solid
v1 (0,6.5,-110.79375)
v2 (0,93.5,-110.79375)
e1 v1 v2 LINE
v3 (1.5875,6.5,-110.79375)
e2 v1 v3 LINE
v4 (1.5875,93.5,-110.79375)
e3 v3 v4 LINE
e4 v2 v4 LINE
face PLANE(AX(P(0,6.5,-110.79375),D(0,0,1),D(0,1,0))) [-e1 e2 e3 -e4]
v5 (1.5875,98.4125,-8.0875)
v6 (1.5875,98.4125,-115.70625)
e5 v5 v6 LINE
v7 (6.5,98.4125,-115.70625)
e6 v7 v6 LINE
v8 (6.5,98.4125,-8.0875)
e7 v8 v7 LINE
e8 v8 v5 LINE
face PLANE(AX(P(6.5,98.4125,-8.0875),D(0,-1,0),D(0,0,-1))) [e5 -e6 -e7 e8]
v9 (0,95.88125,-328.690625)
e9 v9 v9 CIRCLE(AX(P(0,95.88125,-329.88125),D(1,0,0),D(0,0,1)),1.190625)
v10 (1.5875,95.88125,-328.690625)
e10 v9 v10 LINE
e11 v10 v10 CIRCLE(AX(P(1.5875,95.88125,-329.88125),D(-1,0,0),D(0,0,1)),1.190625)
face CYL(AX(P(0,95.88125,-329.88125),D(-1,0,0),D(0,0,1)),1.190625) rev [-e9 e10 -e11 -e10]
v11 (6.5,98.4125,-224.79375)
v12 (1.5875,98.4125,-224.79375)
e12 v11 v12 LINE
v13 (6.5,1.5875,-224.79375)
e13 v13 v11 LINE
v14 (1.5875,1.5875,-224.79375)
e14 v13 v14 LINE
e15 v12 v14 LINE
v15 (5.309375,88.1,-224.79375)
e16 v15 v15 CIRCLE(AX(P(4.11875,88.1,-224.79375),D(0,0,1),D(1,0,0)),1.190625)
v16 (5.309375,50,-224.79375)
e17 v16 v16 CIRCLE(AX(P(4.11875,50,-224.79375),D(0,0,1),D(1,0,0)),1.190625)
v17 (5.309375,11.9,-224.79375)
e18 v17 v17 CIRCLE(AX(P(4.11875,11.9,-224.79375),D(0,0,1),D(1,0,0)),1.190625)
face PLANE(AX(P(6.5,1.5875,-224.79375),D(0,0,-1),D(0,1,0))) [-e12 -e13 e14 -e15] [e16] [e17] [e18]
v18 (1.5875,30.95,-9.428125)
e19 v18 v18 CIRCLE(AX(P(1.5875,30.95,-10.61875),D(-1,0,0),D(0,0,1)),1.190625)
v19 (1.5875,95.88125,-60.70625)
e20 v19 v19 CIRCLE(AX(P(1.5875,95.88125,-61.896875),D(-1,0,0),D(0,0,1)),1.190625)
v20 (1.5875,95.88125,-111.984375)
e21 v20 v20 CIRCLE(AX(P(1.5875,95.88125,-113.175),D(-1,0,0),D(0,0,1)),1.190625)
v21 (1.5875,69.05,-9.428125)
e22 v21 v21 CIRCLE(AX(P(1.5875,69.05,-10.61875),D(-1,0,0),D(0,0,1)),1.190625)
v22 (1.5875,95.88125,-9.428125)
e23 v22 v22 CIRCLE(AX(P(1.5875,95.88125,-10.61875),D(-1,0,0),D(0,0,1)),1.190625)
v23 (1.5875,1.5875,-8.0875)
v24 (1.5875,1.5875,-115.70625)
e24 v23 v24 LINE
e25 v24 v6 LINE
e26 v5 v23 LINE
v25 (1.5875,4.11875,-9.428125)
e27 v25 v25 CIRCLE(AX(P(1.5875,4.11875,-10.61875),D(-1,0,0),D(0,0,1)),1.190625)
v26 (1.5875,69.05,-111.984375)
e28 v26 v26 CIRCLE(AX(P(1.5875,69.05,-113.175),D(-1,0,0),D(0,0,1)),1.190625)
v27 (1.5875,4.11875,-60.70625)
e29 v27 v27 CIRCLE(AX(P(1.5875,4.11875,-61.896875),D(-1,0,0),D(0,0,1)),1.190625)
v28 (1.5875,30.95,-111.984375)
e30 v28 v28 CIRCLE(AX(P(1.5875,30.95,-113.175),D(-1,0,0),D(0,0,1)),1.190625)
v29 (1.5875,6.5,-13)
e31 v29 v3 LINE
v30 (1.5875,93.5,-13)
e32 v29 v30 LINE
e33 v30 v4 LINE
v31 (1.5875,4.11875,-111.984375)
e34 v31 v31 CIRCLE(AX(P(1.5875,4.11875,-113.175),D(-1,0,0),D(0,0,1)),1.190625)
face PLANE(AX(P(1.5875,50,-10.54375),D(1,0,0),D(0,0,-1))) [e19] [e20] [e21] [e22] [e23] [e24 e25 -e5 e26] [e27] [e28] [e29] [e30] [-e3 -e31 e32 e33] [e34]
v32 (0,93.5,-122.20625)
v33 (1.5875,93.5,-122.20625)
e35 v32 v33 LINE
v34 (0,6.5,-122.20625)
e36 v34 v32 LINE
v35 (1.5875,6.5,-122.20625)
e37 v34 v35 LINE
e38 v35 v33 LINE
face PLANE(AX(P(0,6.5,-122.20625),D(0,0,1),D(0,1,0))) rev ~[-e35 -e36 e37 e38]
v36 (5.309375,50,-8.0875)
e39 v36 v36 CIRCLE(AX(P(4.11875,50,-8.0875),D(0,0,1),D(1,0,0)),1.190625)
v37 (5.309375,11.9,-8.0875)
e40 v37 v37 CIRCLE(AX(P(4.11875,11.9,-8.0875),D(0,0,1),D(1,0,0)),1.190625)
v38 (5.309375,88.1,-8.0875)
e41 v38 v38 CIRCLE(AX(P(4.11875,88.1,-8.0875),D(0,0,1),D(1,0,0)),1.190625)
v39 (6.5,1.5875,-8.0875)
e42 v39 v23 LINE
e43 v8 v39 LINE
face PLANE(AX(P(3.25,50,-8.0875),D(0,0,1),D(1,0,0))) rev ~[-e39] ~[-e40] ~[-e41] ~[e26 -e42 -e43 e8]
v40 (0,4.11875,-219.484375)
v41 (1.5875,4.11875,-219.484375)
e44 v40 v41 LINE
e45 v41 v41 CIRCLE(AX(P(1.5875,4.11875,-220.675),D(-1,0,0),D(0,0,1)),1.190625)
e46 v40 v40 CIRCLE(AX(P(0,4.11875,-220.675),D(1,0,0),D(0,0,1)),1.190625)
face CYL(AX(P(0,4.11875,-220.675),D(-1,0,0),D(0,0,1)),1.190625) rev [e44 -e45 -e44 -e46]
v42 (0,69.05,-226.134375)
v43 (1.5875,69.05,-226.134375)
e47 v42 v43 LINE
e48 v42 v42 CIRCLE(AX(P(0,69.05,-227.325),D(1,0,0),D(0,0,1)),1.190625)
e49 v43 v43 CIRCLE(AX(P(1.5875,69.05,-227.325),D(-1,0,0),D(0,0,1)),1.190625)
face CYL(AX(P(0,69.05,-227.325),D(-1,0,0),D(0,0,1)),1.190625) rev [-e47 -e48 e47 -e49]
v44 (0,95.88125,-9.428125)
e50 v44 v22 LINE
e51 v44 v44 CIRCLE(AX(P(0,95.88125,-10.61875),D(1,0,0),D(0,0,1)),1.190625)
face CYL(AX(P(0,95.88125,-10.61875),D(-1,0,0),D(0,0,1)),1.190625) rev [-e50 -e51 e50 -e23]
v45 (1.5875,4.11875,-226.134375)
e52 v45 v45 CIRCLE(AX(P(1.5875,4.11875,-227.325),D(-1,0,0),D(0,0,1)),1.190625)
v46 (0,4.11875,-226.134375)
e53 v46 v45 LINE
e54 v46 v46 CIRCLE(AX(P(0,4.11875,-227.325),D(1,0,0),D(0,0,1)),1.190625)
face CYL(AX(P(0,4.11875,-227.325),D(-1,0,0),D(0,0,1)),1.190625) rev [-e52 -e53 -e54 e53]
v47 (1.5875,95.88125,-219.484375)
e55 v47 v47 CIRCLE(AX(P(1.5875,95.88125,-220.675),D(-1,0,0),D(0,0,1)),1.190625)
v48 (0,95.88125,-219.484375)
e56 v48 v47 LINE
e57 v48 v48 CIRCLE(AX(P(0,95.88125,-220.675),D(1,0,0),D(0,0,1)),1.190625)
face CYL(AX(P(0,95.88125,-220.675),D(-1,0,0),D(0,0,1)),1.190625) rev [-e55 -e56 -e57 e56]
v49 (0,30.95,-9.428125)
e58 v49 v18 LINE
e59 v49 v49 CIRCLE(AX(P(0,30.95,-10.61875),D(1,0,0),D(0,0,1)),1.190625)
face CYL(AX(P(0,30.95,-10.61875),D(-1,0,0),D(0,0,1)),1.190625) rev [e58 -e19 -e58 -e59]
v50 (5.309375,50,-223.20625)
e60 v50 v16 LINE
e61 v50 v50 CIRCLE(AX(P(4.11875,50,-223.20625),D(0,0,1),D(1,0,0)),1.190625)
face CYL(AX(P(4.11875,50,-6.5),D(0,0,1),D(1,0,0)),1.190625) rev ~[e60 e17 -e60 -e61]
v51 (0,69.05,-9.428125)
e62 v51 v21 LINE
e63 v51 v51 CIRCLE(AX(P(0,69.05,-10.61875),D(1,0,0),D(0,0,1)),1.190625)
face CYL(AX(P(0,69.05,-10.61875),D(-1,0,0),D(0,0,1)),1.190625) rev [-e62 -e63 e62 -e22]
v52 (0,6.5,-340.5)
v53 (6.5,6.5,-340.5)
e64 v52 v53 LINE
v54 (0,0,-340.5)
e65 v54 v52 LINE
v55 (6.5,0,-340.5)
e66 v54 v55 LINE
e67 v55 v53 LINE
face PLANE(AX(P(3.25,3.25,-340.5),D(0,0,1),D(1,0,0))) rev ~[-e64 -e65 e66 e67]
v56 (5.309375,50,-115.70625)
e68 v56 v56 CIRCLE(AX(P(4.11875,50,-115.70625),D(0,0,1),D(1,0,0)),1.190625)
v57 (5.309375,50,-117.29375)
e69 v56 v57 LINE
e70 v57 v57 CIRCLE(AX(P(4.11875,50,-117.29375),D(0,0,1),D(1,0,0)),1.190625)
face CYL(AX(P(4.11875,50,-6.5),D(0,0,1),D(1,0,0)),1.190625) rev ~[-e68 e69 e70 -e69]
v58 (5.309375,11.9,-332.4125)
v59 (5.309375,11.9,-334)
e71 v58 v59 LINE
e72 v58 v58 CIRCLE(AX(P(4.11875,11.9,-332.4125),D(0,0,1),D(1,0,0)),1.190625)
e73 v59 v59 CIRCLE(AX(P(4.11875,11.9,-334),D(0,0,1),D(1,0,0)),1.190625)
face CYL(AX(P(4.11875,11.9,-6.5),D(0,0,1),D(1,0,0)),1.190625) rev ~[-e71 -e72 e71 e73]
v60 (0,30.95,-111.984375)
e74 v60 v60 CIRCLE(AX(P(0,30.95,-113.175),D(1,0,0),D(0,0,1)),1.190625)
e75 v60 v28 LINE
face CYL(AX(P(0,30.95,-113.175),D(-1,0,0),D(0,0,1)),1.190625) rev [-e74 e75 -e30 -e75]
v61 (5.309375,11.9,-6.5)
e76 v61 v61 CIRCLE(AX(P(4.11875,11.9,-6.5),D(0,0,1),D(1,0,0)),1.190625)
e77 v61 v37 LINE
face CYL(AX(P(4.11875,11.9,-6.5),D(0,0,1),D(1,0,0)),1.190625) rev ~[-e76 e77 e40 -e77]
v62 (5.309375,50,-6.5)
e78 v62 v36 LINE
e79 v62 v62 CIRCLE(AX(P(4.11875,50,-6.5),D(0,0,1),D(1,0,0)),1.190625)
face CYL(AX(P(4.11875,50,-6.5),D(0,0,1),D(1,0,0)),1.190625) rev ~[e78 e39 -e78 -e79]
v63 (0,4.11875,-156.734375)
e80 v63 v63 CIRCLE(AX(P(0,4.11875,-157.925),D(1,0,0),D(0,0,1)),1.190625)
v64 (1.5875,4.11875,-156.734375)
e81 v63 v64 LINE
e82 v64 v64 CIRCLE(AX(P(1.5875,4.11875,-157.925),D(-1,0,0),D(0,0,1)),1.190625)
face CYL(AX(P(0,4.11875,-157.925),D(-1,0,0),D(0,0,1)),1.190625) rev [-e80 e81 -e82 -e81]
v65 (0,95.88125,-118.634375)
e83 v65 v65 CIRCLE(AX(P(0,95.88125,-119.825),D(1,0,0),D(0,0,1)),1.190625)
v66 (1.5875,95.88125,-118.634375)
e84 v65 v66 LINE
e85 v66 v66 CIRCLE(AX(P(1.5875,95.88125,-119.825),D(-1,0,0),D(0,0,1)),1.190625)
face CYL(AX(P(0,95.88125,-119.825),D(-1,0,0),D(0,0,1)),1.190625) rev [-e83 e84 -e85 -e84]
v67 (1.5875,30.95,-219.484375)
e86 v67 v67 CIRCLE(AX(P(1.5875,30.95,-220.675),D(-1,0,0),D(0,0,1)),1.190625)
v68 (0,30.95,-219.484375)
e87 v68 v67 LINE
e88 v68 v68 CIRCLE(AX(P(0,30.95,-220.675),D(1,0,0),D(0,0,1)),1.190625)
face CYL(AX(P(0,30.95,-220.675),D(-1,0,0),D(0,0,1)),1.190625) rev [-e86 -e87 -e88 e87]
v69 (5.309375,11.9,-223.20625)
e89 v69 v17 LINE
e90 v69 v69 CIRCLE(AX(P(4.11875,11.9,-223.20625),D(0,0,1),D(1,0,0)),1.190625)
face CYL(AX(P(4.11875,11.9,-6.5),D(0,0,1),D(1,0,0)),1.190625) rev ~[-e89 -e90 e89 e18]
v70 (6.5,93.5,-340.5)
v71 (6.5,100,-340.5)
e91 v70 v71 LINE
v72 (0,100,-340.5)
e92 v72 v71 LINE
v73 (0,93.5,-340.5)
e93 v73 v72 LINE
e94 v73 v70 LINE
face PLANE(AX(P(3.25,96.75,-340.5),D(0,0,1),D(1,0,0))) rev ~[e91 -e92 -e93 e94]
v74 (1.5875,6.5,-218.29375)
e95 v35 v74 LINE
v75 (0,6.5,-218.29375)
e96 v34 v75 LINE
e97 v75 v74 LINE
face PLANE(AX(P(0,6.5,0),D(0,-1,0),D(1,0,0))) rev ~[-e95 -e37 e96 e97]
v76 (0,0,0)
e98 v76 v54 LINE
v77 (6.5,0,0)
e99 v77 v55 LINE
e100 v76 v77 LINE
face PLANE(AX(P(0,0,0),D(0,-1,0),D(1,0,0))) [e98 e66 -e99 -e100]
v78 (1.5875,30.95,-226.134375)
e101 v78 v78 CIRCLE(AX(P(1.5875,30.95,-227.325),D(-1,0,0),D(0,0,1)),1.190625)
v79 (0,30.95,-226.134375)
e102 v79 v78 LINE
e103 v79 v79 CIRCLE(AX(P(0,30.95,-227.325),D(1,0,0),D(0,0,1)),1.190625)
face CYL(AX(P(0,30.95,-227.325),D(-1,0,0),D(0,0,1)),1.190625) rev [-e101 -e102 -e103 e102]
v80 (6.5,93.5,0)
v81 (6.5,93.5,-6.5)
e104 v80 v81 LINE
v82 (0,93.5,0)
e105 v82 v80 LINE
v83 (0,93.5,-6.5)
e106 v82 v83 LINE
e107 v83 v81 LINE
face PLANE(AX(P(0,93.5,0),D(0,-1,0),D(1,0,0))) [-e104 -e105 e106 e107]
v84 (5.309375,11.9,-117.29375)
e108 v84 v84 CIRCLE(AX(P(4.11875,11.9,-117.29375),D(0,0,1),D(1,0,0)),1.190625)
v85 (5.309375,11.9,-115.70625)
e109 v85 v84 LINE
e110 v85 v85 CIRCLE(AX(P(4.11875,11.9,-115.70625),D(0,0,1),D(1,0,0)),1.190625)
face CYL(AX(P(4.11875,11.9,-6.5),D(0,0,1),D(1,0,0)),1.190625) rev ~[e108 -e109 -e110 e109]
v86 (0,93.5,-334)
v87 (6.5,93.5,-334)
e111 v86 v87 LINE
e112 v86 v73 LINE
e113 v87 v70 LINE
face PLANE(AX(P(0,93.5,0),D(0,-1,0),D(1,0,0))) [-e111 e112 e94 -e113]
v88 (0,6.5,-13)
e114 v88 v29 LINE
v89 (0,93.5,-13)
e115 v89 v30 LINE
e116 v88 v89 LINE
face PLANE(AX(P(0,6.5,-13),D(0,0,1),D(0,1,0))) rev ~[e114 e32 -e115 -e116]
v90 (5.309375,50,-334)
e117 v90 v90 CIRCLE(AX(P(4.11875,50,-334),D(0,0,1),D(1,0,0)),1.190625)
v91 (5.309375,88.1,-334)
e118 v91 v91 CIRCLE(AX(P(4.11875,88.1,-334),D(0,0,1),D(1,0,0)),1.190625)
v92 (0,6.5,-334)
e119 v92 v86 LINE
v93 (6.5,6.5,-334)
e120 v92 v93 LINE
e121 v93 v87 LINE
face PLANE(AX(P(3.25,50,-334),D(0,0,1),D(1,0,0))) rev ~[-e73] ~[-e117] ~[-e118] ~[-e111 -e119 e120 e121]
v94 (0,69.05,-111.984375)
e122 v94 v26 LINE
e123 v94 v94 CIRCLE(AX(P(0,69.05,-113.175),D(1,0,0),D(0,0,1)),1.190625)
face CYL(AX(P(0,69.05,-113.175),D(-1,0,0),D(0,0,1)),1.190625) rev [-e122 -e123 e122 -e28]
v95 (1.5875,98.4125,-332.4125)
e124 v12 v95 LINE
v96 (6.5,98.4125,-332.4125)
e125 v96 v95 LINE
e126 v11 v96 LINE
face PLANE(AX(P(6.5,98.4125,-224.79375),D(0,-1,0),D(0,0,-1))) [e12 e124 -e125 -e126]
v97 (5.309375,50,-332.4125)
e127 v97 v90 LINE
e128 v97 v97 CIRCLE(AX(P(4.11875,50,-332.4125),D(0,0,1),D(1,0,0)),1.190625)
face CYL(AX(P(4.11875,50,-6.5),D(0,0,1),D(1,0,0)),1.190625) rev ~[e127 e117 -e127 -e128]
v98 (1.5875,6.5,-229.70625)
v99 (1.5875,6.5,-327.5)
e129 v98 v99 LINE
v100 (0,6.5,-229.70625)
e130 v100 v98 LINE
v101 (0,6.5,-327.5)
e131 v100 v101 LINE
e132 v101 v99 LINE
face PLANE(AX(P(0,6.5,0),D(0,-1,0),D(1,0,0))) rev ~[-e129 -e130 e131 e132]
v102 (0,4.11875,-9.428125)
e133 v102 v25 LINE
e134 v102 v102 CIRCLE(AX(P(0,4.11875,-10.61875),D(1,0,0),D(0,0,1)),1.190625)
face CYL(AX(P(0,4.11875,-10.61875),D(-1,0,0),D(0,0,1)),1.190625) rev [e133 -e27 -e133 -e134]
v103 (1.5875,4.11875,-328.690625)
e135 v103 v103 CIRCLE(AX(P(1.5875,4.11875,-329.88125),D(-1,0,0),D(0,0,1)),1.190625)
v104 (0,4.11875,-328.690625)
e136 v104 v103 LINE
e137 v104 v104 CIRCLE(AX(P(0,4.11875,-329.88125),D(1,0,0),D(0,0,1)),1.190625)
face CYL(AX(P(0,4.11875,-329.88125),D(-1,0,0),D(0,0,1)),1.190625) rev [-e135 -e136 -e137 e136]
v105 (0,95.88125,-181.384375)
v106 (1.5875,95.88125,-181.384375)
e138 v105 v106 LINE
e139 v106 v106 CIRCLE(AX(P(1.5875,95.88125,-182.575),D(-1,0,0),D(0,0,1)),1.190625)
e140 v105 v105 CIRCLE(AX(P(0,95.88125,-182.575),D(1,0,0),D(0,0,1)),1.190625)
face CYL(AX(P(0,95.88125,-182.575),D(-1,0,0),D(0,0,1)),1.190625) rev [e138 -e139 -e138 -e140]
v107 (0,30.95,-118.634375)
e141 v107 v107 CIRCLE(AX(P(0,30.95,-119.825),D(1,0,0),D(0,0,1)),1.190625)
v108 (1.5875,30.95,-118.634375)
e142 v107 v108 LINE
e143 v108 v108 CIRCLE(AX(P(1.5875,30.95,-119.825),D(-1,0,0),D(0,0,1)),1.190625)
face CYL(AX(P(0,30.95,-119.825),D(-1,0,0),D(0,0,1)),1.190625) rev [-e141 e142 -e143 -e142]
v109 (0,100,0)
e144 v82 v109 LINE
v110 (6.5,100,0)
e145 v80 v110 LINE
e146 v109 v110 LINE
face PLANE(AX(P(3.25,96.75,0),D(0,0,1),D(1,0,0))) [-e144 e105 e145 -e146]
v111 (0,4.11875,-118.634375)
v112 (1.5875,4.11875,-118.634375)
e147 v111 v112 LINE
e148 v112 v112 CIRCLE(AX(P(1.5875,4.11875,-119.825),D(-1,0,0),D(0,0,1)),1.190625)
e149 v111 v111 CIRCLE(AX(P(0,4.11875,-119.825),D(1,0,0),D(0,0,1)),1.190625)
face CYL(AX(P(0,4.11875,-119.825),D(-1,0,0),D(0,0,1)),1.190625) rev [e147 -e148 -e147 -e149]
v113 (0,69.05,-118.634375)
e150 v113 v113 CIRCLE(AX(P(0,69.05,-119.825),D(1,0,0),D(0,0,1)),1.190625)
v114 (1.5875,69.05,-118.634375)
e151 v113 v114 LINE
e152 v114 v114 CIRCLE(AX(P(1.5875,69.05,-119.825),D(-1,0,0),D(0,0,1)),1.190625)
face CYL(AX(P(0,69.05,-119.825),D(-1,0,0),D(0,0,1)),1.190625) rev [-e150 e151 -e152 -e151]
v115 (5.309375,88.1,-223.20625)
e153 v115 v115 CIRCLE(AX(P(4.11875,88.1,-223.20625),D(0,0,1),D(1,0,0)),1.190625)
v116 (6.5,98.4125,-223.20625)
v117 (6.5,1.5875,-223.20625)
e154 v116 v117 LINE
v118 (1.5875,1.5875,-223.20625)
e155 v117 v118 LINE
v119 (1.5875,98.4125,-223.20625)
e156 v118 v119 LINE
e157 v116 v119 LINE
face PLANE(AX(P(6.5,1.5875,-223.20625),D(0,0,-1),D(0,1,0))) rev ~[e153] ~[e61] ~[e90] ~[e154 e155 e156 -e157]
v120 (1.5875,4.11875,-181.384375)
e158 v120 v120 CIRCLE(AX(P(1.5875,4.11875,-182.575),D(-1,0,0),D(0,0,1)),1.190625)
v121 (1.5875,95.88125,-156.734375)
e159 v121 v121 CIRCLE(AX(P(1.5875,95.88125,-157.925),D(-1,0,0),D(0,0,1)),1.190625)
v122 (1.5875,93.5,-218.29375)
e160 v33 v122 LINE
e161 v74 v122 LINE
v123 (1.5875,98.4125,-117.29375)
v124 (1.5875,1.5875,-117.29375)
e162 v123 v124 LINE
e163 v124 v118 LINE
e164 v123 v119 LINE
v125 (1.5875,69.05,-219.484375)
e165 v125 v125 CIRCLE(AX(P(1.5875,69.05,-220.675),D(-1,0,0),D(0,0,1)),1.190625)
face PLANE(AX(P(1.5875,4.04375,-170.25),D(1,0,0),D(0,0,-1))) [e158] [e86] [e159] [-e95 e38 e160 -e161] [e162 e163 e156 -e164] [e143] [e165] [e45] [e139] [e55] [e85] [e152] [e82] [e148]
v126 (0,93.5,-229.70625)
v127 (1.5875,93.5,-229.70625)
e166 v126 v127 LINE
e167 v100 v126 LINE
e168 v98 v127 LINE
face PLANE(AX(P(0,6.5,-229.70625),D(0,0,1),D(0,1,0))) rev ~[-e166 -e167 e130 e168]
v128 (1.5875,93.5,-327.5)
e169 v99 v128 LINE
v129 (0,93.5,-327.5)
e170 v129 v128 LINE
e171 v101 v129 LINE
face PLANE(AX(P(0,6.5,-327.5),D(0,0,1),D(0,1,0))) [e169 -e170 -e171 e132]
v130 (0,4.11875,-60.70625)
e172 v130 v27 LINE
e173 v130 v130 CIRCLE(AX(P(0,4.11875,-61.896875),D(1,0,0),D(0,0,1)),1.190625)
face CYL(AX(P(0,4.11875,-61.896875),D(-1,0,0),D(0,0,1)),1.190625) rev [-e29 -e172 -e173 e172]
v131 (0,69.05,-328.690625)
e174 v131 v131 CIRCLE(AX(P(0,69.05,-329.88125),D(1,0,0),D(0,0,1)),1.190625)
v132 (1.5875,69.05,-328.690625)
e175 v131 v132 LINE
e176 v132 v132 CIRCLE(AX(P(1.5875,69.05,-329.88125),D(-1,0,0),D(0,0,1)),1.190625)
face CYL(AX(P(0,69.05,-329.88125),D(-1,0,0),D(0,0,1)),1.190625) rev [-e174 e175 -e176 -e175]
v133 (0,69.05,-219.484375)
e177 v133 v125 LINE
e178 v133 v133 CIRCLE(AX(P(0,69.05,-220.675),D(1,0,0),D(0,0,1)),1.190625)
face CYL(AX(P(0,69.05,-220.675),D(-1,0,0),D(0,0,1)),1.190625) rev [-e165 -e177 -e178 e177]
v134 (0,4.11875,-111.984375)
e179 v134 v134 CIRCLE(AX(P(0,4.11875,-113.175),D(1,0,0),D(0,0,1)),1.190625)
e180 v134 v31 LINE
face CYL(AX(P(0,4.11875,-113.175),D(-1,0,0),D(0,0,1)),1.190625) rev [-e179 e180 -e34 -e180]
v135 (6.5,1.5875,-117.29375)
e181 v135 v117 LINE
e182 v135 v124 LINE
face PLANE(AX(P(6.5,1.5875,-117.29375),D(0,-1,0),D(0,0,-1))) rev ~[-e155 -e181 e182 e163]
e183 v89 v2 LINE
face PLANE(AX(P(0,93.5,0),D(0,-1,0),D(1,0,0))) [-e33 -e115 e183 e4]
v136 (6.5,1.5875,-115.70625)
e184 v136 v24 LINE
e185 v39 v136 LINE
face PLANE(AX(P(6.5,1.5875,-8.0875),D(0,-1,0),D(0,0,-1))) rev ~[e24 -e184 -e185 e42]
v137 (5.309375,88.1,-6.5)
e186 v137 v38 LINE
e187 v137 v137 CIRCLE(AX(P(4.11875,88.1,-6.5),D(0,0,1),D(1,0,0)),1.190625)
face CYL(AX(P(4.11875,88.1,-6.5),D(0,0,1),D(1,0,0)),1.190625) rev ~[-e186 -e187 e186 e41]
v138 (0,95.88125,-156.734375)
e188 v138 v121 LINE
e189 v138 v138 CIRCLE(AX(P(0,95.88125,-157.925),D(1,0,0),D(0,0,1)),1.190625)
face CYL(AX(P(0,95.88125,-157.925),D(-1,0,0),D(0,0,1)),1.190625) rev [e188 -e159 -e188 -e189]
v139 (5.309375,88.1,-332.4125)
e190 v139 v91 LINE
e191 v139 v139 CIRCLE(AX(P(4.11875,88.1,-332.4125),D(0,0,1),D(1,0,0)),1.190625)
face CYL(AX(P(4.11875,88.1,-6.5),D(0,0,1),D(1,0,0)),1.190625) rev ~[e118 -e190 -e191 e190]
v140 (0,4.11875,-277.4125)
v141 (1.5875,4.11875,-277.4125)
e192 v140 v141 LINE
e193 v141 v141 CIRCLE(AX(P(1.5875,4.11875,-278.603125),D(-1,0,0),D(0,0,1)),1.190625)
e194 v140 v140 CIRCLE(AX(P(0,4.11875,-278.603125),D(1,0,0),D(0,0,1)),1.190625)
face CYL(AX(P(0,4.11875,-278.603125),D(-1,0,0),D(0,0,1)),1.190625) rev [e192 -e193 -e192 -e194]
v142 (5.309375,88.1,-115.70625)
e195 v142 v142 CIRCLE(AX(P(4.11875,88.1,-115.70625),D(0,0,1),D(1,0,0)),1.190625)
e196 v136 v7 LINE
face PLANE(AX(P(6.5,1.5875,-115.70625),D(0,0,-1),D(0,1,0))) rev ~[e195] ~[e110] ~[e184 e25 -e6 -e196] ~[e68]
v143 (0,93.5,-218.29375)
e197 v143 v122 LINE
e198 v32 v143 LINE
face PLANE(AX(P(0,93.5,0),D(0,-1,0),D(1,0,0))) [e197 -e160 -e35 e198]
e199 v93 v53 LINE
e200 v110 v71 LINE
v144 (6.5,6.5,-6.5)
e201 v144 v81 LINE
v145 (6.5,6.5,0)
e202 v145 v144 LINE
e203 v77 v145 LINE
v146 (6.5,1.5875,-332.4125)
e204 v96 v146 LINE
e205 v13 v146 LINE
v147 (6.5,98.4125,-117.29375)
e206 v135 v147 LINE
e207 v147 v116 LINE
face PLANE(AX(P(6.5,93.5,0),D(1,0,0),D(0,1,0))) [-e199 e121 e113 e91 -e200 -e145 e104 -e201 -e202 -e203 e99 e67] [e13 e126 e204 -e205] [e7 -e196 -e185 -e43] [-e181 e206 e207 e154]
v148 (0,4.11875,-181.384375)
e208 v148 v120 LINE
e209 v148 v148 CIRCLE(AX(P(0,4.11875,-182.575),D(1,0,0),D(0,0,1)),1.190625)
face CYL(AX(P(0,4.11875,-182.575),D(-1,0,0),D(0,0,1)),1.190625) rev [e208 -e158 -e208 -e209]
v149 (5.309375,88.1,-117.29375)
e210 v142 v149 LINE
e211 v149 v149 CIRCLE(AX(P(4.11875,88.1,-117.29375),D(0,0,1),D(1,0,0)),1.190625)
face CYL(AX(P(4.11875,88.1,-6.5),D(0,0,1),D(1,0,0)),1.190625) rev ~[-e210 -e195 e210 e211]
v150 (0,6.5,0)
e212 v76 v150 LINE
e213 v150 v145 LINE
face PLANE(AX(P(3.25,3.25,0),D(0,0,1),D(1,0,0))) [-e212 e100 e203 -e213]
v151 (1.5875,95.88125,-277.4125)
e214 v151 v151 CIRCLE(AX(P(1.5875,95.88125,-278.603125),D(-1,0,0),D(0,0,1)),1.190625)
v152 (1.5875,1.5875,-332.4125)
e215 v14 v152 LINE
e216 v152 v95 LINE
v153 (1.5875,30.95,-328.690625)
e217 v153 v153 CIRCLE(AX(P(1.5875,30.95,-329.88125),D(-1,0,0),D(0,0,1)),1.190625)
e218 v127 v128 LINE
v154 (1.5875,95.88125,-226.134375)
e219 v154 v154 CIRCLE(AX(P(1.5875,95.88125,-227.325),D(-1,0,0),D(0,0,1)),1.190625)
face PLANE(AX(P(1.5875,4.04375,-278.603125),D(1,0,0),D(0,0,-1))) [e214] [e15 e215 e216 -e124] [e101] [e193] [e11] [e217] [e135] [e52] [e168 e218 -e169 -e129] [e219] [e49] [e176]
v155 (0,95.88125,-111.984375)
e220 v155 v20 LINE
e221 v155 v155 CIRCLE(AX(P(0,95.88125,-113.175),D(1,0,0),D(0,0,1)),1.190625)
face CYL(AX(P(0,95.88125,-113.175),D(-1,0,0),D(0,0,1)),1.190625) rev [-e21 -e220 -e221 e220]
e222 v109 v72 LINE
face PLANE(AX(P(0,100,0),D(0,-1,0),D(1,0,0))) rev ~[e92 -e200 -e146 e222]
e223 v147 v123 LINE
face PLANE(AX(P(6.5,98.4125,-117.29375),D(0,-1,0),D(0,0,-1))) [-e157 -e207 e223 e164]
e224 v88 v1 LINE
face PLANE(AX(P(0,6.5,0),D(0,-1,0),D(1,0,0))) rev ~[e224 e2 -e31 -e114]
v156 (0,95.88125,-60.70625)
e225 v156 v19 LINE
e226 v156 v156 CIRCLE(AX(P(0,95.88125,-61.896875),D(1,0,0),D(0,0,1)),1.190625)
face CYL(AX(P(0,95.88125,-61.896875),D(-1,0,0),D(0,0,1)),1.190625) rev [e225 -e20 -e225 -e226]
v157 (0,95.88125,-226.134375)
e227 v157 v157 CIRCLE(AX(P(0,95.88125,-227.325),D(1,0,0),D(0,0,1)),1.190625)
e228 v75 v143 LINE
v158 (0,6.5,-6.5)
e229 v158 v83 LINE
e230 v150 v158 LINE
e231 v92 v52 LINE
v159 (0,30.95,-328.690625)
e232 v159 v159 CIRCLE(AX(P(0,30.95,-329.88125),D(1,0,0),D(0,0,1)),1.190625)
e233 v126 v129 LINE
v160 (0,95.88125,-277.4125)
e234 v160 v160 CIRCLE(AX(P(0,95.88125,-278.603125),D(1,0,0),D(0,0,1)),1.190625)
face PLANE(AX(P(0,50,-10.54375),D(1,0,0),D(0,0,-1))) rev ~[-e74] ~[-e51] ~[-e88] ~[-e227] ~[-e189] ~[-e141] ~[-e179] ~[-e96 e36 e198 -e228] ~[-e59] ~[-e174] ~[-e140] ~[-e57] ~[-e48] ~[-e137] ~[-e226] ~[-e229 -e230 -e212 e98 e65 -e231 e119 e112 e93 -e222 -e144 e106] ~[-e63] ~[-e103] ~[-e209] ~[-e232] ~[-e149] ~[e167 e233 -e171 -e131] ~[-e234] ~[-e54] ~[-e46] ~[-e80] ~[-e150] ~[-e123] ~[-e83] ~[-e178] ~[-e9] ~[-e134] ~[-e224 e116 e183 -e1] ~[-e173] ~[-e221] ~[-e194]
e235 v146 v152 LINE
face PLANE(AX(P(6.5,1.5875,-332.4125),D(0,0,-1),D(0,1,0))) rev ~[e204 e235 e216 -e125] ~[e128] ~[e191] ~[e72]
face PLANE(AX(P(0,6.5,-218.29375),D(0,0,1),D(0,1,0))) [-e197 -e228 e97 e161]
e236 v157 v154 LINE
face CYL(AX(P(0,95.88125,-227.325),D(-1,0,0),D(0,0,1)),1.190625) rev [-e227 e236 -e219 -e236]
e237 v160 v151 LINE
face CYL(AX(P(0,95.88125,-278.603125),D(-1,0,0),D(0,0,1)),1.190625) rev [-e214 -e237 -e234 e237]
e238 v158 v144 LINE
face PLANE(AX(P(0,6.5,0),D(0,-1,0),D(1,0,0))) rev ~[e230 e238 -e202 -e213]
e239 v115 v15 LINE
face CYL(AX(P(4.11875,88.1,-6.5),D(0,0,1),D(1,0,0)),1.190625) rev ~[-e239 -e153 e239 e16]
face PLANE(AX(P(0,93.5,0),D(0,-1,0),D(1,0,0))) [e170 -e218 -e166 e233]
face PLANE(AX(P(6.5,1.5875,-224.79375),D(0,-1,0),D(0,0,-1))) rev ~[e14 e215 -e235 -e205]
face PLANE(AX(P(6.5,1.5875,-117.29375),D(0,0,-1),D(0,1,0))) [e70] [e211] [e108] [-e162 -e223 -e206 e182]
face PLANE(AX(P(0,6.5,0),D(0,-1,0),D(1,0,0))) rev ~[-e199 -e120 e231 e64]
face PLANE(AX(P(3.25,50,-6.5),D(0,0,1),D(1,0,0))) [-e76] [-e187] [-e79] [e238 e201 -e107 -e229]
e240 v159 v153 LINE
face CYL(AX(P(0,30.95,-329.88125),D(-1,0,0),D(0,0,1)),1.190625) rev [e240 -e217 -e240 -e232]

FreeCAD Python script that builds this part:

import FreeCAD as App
import Part
import Sketcher


def add_polygon(sketch, points):
    """Adds a closed chain of lines whose ends are joined by coincident constraints."""
    first, n = sketch.GeometryCount, len(points)
    for a, b in zip(points, points[1:] + points[:1]):
        sketch.addGeometry(Part.LineSegment(App.Vector(*a, 0), App.Vector(*b, 0)), False)
    for i in range(n):
        sketch.addConstraint(Sketcher.Constraint("Coincident", first + i, 2, first + (i + 1) % n, 1))

doc = App.newDocument("Part")
body = doc.addObject("PartDesign::Body", "Body")

# Sketch on XY plane
sketch1 = body.newObject("Sketcher::SketchObject", "Sketch")
sketch1.AttachmentSupport = (doc.getObject("XY_Plane"), [""])
sketch1.MapMode = "FlatFace"
add_polygon(sketch1, [(0, 6), (0, 0), (6, 0), (6, 6)])  # lines 0-3
sketch1.addConstraint([
    Sketcher.Constraint("Vertical", 0),
    Sketcher.Constraint("Horizontal", 1),
    Sketcher.Constraint("Vertical", 2),
    Sketcher.Constraint("Horizontal", 3),
    Sketcher.Constraint("Coincident", 0, 2, -1, 1),
    Sketcher.Constraint("Equal", 3, 0),
    Sketcher.Constraint("DistanceX", 1, 1, 1, 2, 6.5),
])
pad1 = body.newObject("PartDesign::Pad", "Pad")
pad1.Profile = sketch1
pad1.Length = 340.5
pad1.Reversed = True
body2 = doc.addObject("PartDesign::Body", "Body001")

# Sketch on XY plane
sketch2 = body2.newObject("Sketcher::SketchObject", "Sketch001")
sketch2.AttachmentSupport = (doc.getObject("XY_Plane001"), [""])
sketch2.MapMode = "FlatFace"
add_polygon(sketch2, [(0, 100), (0, 94), (6, 94), (6, 100)])  # lines 0-3
sketch2.addConstraint([
    Sketcher.Constraint("Vertical", 0),
    Sketcher.Constraint("Horizontal", 1),
    Sketcher.Constraint("Vertical", 2),
    Sketcher.Constraint("Horizontal", 3),
    Sketcher.Constraint("PointOnObject", 0, 2, -2),
    Sketcher.Constraint("Equal", 3, 0),
    Sketcher.Constraint("DistanceX", 1, 1, 1, 2, 6.5),
    Sketcher.Constraint("DistanceY", -1, 1, 2, 2, 100.0),
])
pad2 = body2.newObject("PartDesign::Pad", "Pad001")
pad2.Profile = sketch2
pad2.Length = 340.5
pad2.Reversed = True
body.AllowCompound = True
doc.recompute()

boolean = body.newObject("PartDesign::Boolean", "Boolean")
boolean.Type = "Fuse"
boolean.addObjects([body2])

# Sketch on XY plane
sketch3 = body.newObject("Sketcher::SketchObject", "Sketch002")
sketch3.AttachmentSupport = (doc.getObject("XY_Plane"), [""])
sketch3.MapMode = "FlatFace"
sketch3.AttachmentOffset = App.Placement(App.Vector(0, 0, -6.5), App.Rotation())
add_polygon(sketch3, [(0, 94), (0, 6), (6, 6), (6, 94)])  # lines 0-3
sketch3.addConstraint([
    Sketcher.Constraint("Vertical", 0),
    Sketcher.Constraint("Horizontal", 1),
    Sketcher.Constraint("Vertical", 2),
    Sketcher.Constraint("Horizontal", 3),
    Sketcher.Constraint("PointOnObject", 0, 2, -2),
    Sketcher.Constraint("DistanceY", 0, 2, 0, 1, 87.0),
    Sketcher.Constraint("DistanceX", 1, 1, 1, 2, 6.5),
    Sketcher.Constraint("DistanceY", -1, 1, 0, 2, 6.5),
])
pad3 = body.newObject("PartDesign::Pad", "Pad002")
pad3.Profile = sketch3
pad3.Length = 1.5875
pad3.Reversed = True

# Sketch on XY plane
sketch4 = body.newObject("Sketcher::SketchObject", "Sketch003")
sketch4.AttachmentSupport = (doc.getObject("XY_Plane"), [""])
sketch4.MapMode = "FlatFace"
sketch4.AttachmentOffset = App.Placement(App.Vector(0, 0, -116.5), App.Rotation())
add_polygon(sketch4, [(0, 94), (0, 6), (6, 6), (6, 94)])  # lines 0-3
sketch4.addConstraint([
    Sketcher.Constraint("Vertical", 0),
    Sketcher.Constraint("Horizontal", 1),
    Sketcher.Constraint("Vertical", 2),
    Sketcher.Constraint("Horizontal", 3),
    Sketcher.Constraint("PointOnObject", 0, 2, -2),
    Sketcher.Constraint("DistanceY", 0, 2, 0, 1, 87.0),
    Sketcher.Constraint("DistanceX", 1, 1, 1, 2, 6.5),
    Sketcher.Constraint("DistanceY", -1, 1, 0, 2, 6.5),
])
pad4 = body.newObject("PartDesign::Pad", "Pad003")
pad4.Profile = sketch4
pad4.Length = 1.5875
pad4.Midplane = True

# Sketch on XY plane
sketch5 = body.newObject("Sketcher::SketchObject", "Sketch004")
sketch5.AttachmentSupport = (doc.getObject("XY_Plane"), [""])
sketch5.MapMode = "FlatFace"
sketch5.AttachmentOffset = App.Placement(App.Vector(0, 0, -224), App.Rotation())
add_polygon(sketch5, [(0, 94), (0, 6), (6, 6), (6, 94)])  # lines 0-3
sketch5.addConstraint([
    Sketcher.Constraint("Vertical", 0),
    Sketcher.Constraint("Horizontal", 1),
    Sketcher.Constraint("Vertical", 2),
    Sketcher.Constraint("Horizontal", 3),
    Sketcher.Constraint("PointOnObject", 0, 2, -2),
    Sketcher.Constraint("DistanceY", 0, 2, 0, 1, 87.0),
    Sketcher.Constraint("DistanceX", 1, 1, 1, 2, 6.5),
    Sketcher.Constraint("DistanceY", -1, 1, 0, 2, 6.5),
])
pad5 = body.newObject("PartDesign::Pad", "Pad004")
pad5.Profile = sketch5
pad5.Length = 1.5875
pad5.Midplane = True

# Sketch on XY plane
sketch6 = body.newObject("Sketcher::SketchObject", "Sketch005")
sketch6.AttachmentSupport = (doc.getObject("XY_Plane"), [""])
sketch6.MapMode = "FlatFace"
sketch6.AttachmentOffset = App.Placement(App.Vector(0, 0, -334), App.Rotation())
add_polygon(sketch6, [(0, 94), (0, 6), (6, 6), (6, 94)])  # lines 0-3
sketch6.addConstraint([
    Sketcher.Constraint("Vertical", 0),
    Sketcher.Constraint("Horizontal", 1),
    Sketcher.Constraint("Vertical", 2),
    Sketcher.Constraint("Horizontal", 3),
    Sketcher.Constraint("PointOnObject", 0, 2, -2),
    Sketcher.Constraint("DistanceY", 0, 2, 0, 1, 87.0),
    Sketcher.Constraint("DistanceX", 1, 1, 1, 2, 6.5),
    Sketcher.Constraint("DistanceY", -1, 1, 0, 2, 6.5),
])
pad6 = body.newObject("PartDesign::Pad", "Pad005")
pad6.Profile = sketch6
pad6.Length = 1.5875

# Sketch on YZ plane
sketch7 = body.newObject("Sketcher::SketchObject", "Sketch006")
sketch7.AttachmentSupport = (doc.getObject("YZ_Plane"), [""])
sketch7.MapMode = "FlatFace"
add_polygon(sketch7, [(93.5, -8.1), (6.5, -8.1), (6.5, -13), (93.5, -13)])  # lines 0-3
add_polygon(sketch7, [(93.5, -110.8), (6.5, -110.8), (6.5, -115.7), (93.5, -115.7)])  # lines 4-7
add_polygon(sketch7, [(93.5, -117.3), (6.5, -117.3), (6.5, -122.2), (93.5, -122.2)])  # lines 8-11
add_polygon(sketch7, [(93.5, -218.3), (6.5, -218.3), (6.5, -223.2), (93.5, -223.2)])  # lines 12-15
add_polygon(sketch7, [(93.5, -224.8), (6.5, -224.8), (6.5, -229.7), (93.5, -229.7)])  # lines 16-19
add_polygon(sketch7, [(93.5, -327.5), (6.5, -327.5), (6.5, -332.4), (93.5, -332.4)])  # lines 20-23
sketch7.addConstraint([
    Sketcher.Constraint("Horizontal", 0),
    Sketcher.Constraint("Vertical", 1),
    Sketcher.Constraint("Horizontal", 2),
    Sketcher.Constraint("Vertical", 3),
    Sketcher.Constraint("Horizontal", 4),
    Sketcher.Constraint("Vertical", 5),
    Sketcher.Constraint("Horizontal", 6),
    Sketcher.Constraint("Vertical", 7),
    Sketcher.Constraint("Horizontal", 8),
    Sketcher.Constraint("Vertical", 9),
    Sketcher.Constraint("Horizontal", 10),
    Sketcher.Constraint("Vertical", 11),
    Sketcher.Constraint("Horizontal", 12),
    Sketcher.Constraint("Vertical", 13),
    Sketcher.Constraint("Horizontal", 14),
    Sketcher.Constraint("Vertical", 15),
    Sketcher.Constraint("Horizontal", 16),
    Sketcher.Constraint("Vertical", 17),
    Sketcher.Constraint("Horizontal", 18),
    Sketcher.Constraint("Vertical", 19),
    Sketcher.Constraint("Horizontal", 20),
    Sketcher.Constraint("Vertical", 21),
    Sketcher.Constraint("Horizontal", 22),
    Sketcher.Constraint("Vertical", 23),
    Sketcher.Constraint("Vertical", 1, 2, 4, 2),
    Sketcher.Constraint("Vertical", 3, 2, 6, 2),
    Sketcher.Constraint("Vertical", 5, 2, 8, 2),
    Sketcher.Constraint("Vertical", 7, 2, 10, 2),
    Sketcher.Constraint("Vertical", 9, 2, 12, 2),
    Sketcher.Constraint("Vertical", 11, 2, 14, 2),
    Sketcher.Constraint("Vertical", 13, 2, 16, 2),
    Sketcher.Constraint("Vertical", 15, 2, 18, 2),
    Sketcher.Constraint("Vertical", 17, 2, 20, 2),
    Sketcher.Constraint("Vertical", 19, 2, 22, 2),
    Sketcher.Constraint("Equal", 3, 5),
    Sketcher.Constraint("Equal", 7, 9),
    Sketcher.Constraint("Equal", 11, 13),
    Sketcher.Constraint("Equal", 15, 17),
    Sketcher.Constraint("Equal", 19, 21),
    Sketcher.Constraint("DistanceX", 0, 2, 0, 1, 87.0),
    Sketcher.Constraint("DistanceY", 1, 2, -1, 1, 13.0),
    Sketcher.Constraint("DistanceY", 12, 2, 8, 2, 101.0),
    Sketcher.Constraint("DistanceX", -1, 1, 0, 2, 6.5),
    Sketcher.Constraint("DistanceY", 20, 2, -1, 1, 327.5),
    Sketcher.Constraint("DistanceY", 8, 2, 4, 2, 6.5),
    Sketcher.Constraint("DistanceY", 16, 2, 12, 2, 6.5),
    Sketcher.Constraint("DistanceY", 1, 2, 1, 1, 4.9125),
    Sketcher.Constraint("DistanceY", 4, 2, -1, 1, 110.79375),
])
pad7 = body.newObject("PartDesign::Pad", "Pad006")
pad7.Profile = sketch7
pad7.Length = 1.5875

# Sketch on YZ plane
sketch8 = body.newObject("Sketcher::SketchObject", "Sketch007")
sketch8.AttachmentSupport = (doc.getObject("YZ_Plane"), [""])
sketch8.MapMode = "FlatFace"
sketch8.AttachmentOffset = App.Placement(App.Vector(0, 0, 6.5), App.Rotation())
add_polygon(sketch8, [(6.5, -8.1), (1.6, -8.1), (1.6, -115.7), (6.5, -115.7)])  # lines 0-3
add_polygon(sketch8, [(98.4, -8.1), (93.5, -8.1), (93.5, -115.7), (98.4, -115.7)])  # lines 4-7
add_polygon(sketch8, [(98.4, -117.3), (93.5, -117.3), (93.5, -223.2), (98.4, -223.2)])  # lines 8-11
add_polygon(sketch8, [(6.5, -117.3), (1.6, -117.3), (1.6, -223.2), (6.5, -223.2)])  # lines 12-15
add_polygon(sketch8, [(6.5, -224.8), (1.6, -224.8), (1.6, -332.4), (6.5, -332.4)])  # lines 16-19
add_polygon(sketch8, [(98.4, -224.8), (93.5, -224.8), (93.5, -332.4), (98.4, -332.4)])  # lines 20-23
sketch8.addConstraint([
    Sketcher.Constraint("Horizontal", 0),
    Sketcher.Constraint("Vertical", 1),
    Sketcher.Constraint("Horizontal", 2),
    Sketcher.Constraint("Vertical", 3),
    Sketcher.Constraint("Horizontal", 4),
    Sketcher.Constraint("Vertical", 5),
    Sketcher.Constraint("Horizontal", 6),
    Sketcher.Constraint("Vertical", 7),
    Sketcher.Constraint("Horizontal", 8),
    Sketcher.Constraint("Vertical", 9),
    Sketcher.Constraint("Horizontal", 10),
    Sketcher.Constraint("Vertical", 11),
    Sketcher.Constraint("Horizontal", 12),
    Sketcher.Constraint("Vertical", 13),
    Sketcher.Constraint("Horizontal", 14),
    Sketcher.Constraint("Vertical", 15),
    Sketcher.Constraint("Horizontal", 16),
    Sketcher.Constraint("Vertical", 17),
    Sketcher.Constraint("Horizontal", 18),
    Sketcher.Constraint("Vertical", 19),
    Sketcher.Constraint("Horizontal", 20),
    Sketcher.Constraint("Vertical", 21),
    Sketcher.Constraint("Horizontal", 22),
    Sketcher.Constraint("Vertical", 23),
    Sketcher.Constraint("Horizontal", 3, 2, 4, 2),
    Sketcher.Constraint("Horizontal", 2, 2, 5, 2),
    Sketcher.Constraint("Horizontal", 11, 2, 12, 2),
    Sketcher.Constraint("Horizontal", 10, 2, 13, 2),
    Sketcher.Constraint("Horizontal", 19, 2, 20, 2),
    Sketcher.Constraint("Horizontal", 18, 2, 21, 2),
    Sketcher.Constraint("Vertical", 5, 2, 8, 2),
    Sketcher.Constraint("Vertical", 7, 2, 10, 2),
    Sketcher.Constraint("Vertical", 1, 2, 12, 2),
    Sketcher.Constraint("Vertical", 3, 2, 14, 2),
    Sketcher.Constraint("Vertical", 13, 2, 16, 2),
    Sketcher.Constraint("Vertical", 15, 2, 18, 2),
    Sketcher.Constraint("Vertical", 9, 2, 20, 2),
    Sketcher.Constraint("Vertical", 11, 2, 22, 2),
    Sketcher.Constraint("Equal", 2, 4),
    Sketcher.Constraint("Equal", 7, 17),
    Sketcher.Constraint("DistanceX", 3, 2, 4, 2, 87.0),
    Sketcher.Constraint("DistanceX", -1, 1, 2, 2, 6.5),
    Sketcher.Constraint("DistanceY", 9, 2, 5, 2, 107.5),
    Sketcher.Constraint("DistanceY", 16, 2, 12, 2, 107.5),
    Sketcher.Constraint("DistanceX", 0, 2, 0, 1, 4.9125),
    Sketcher.Constraint("DistanceY", 9, 2, 9, 1, 105.9125),
    Sketcher.Constraint("DistanceY", 1, 2, 1, 1, 107.61875),
    Sketcher.Constraint("DistanceY", 0, 2, -1, 1, 8.0875),
])
pocket1 = body.newObject("PartDesign::Pocket", "Pocket")
pocket1.Profile = sketch8
pocket1.Length = 4.9125

# Sketch on XY plane
sketch9 = body.newObject("Sketcher::SketchObject", "Sketch008")
sketch9.AttachmentSupport = (doc.getObject("XY_Plane"), [""])
sketch9.MapMode = "FlatFace"
sketch9.AttachmentOffset = App.Placement(App.Vector(0, 0, -6.5), App.Rotation())
sketch9.addGeometry([
    Part.Circle(App.Vector(4.1, 88.1, 0), App.Vector(0, 0, 1), 1.2),
    Part.Circle(App.Vector(4.1, 50, 0), App.Vector(0, 0, 1), 1.2),
    Part.Circle(App.Vector(4.1, 11.9, 0), App.Vector(0, 0, 1), 1.2),
], False)
sketch9.addConstraint([
    Sketcher.Constraint("Equal", 0, 1),
    Sketcher.Constraint("Equal", 1, 2),
    Sketcher.Constraint("Vertical", 0, 3, 1, 3),
    Sketcher.Constraint("Vertical", 1, 3, 2, 3),
    Sketcher.Constraint("DistanceY", -1, 1, 1, 3, 50.0),
    Sketcher.Constraint("DistanceY", -1, 1, 0, 3, 88.1),
    Sketcher.Constraint("DistanceY", -1, 1, 2, 3, 11.9),
    Sketcher.Constraint("Diameter", 0, 2.38125),
    Sketcher.Constraint("DistanceX", -1, 1, 0, 3, 4.11875),
])
pocket2 = body.newObject("PartDesign::Pocket", "Pocket001")
pocket2.Profile = sketch9
pocket2.Type = "ThroughAll"

# Sketch on YZ plane
sketch10 = body.newObject("Sketcher::SketchObject", "Sketch009")
sketch10.AttachmentSupport = (doc.getObject("YZ_Plane"), [""])
sketch10.MapMode = "FlatFace"
sketch10.addGeometry([
    Part.Circle(App.Vector(95.9, -10.6, 0), App.Vector(0, 0, 1), 1.2),  # 0
    Part.Circle(App.Vector(95.9, -113.2, 0), App.Vector(0, 0, 1), 1.2),  # 1
    Part.Circle(App.Vector(95.9, -61.9, 0), App.Vector(0, 0, 1), 1.2),  # 2
    Part.Circle(App.Vector(95.9, -119.8, 0), App.Vector(0, 0, 1), 1.2),  # 3
    Part.Circle(App.Vector(95.9, -157.9, 0), App.Vector(0, 0, 1), 1.2),  # 4
    Part.Circle(App.Vector(69, -10.6, 0), App.Vector(0, 0, 1), 1.2),  # 5
    Part.Circle(App.Vector(69, -113.2, 0), App.Vector(0, 0, 1), 1.2),  # 6
    Part.Circle(App.Vector(69, -119.8, 0), App.Vector(0, 0, 1), 1.2),  # 7
    Part.Circle(App.Vector(69, -220.7, 0), App.Vector(0, 0, 1), 1.2),  # 8
    Part.Circle(App.Vector(69, -227.3, 0), App.Vector(0, 0, 1), 1.2),  # 9
    Part.Circle(App.Vector(69, -329.9, 0), App.Vector(0, 0, 1), 1.2),  # 10
    Part.Circle(App.Vector(95.9, -182.6, 0), App.Vector(0, 0, 1), 1.2),  # 11
    Part.Circle(App.Vector(95.9, -220.7, 0), App.Vector(0, 0, 1), 1.2),  # 12
    Part.Circle(App.Vector(95.9, -278.6, 0), App.Vector(0, 0, 1), 1.2),  # 13
    Part.Circle(App.Vector(95.9, -227.3, 0), App.Vector(0, 0, 1), 1.2),  # 14
    Part.Circle(App.Vector(95.9, -329.9, 0), App.Vector(0, 0, 1), 1.2),  # 15
    Part.Circle(App.Vector(4.1, -329.9, 0), App.Vector(0, 0, 1), 1.2),  # 16
    Part.Circle(App.Vector(4.1, -227.3, 0), App.Vector(0, 0, 1), 1.2),  # 17
    Part.Circle(App.Vector(4.1, -278.6, 0), App.Vector(0, 0, 1), 1.2),  # 18
    Part.Circle(App.Vector(4.1, -220.7, 0), App.Vector(0, 0, 1), 1.2),  # 19
    Part.Circle(App.Vector(4.1, -182.6, 0), App.Vector(0, 0, 1), 1.2),  # 20
    Part.Circle(App.Vector(30.9, -329.9, 0), App.Vector(0, 0, 1), 1.2),  # 21
    Part.Circle(App.Vector(30.9, -227.3, 0), App.Vector(0, 0, 1), 1.2),  # 22
    Part.Circle(App.Vector(30.9, -220.7, 0), App.Vector(0, 0, 1), 1.2),  # 23
    Part.Circle(App.Vector(30.9, -119.8, 0), App.Vector(0, 0, 1), 1.2),  # 24
    Part.Circle(App.Vector(30.9, -113.2, 0), App.Vector(0, 0, 1), 1.2),  # 25
    Part.Circle(App.Vector(30.9, -10.6, 0), App.Vector(0, 0, 1), 1.2),  # 26
    Part.Circle(App.Vector(4.1, -157.9, 0), App.Vector(0, 0, 1), 1.2),  # 27
    Part.Circle(App.Vector(4.1, -119.8, 0), App.Vector(0, 0, 1), 1.2),  # 28
    Part.Circle(App.Vector(4.1, -61.9, 0), App.Vector(0, 0, 1), 1.2),  # 29
    Part.Circle(App.Vector(4.1, -113.2, 0), App.Vector(0, 0, 1), 1.2),  # 30
    Part.Circle(App.Vector(4.1, -10.6, 0), App.Vector(0, 0, 1), 1.2),  # 31
], False)
sketch10.addConstraint([
    Sketcher.Constraint("Equal", 0, 1),
    Sketcher.Constraint("Equal", 1, 2),
    Sketcher.Constraint("Equal", 2, 3),
    Sketcher.Constraint("Equal", 3, 4),
    Sketcher.Constraint("Equal", 4, 5),
    Sketcher.Constraint("Equal", 5, 6),
    Sketcher.Constraint("Equal", 6, 7),
    Sketcher.Constraint("Equal", 7, 8),
    Sketcher.Constraint("Equal", 8, 9),
    Sketcher.Constraint("Equal", 9, 10),
    Sketcher.Constraint("Equal", 10, 11),
    Sketcher.Constraint("Equal", 11, 12),
    Sketcher.Constraint("Equal", 12, 13),
    Sketcher.Constraint("Equal", 13, 14),
    Sketcher.Constraint("Equal", 14, 15),
    Sketcher.Constraint("Equal", 15, 16),
    Sketcher.Constraint("Equal", 16, 17),
    Sketcher.Constraint("Equal", 17, 18),
    Sketcher.Constraint("Equal", 18, 19),
    Sketcher.Constraint("Equal", 19, 20),
    Sketcher.Constraint("Equal", 20, 21),
    Sketcher.Constraint("Equal", 21, 22),
    Sketcher.Constraint("Equal", 22, 23),
    Sketcher.Constraint("Equal", 23, 24),
    Sketcher.Constraint("Equal", 24, 25),
    Sketcher.Constraint("Equal", 25, 26),
    Sketcher.Constraint("Equal", 26, 27),
    Sketcher.Constraint("Equal", 27, 28),
    Sketcher.Constraint("Equal", 28, 29),
    Sketcher.Constraint("Equal", 29, 30),
    Sketcher.Constraint("Equal", 30, 31),
    Sketcher.Constraint("Horizontal", 0, 3, 5, 3),
    Sketcher.Constraint("Horizontal", 1, 3, 6, 3),
    Sketcher.Constraint("Horizontal", 3, 3, 7, 3),
    Sketcher.Constraint("Horizontal", 8, 3, 12, 3),
    Sketcher.Constraint("Horizontal", 9, 3, 14, 3),
    Sketcher.Constraint("Horizontal", 10, 3, 15, 3),
    Sketcher.Constraint("Horizontal", 15, 3, 16, 3),
    Sketcher.Constraint("Horizontal", 14, 3, 17, 3),
    Sketcher.Constraint("Horizontal", 13, 3, 18, 3),
    Sketcher.Constraint("Horizontal", 12, 3, 19, 3),
    Sketcher.Constraint("Horizontal", 11, 3, 20, 3),
    Sketcher.Constraint("Horizontal", 16, 3, 21, 3),
    Sketcher.Constraint("Horizontal", 17, 3, 22, 3),
    Sketcher.Constraint("Horizontal", 19, 3, 23, 3),
    Sketcher.Constraint("Horizontal", 7, 3, 24, 3),
    Sketcher.Constraint("Horizontal", 6, 3, 25, 3),
    Sketcher.Constraint("Horizontal", 5, 3, 26, 3),
    Sketcher.Constraint("Horizontal", 4, 3, 27, 3),
    Sketcher.Constraint("Horizontal", 24, 3, 28, 3),
    Sketcher.Constraint("Horizontal", 2, 3, 29, 3),
    Sketcher.Constraint("Horizontal", 25, 3, 30, 3),
    Sketcher.Constraint("Horizontal", 26, 3, 31, 3),
    Sketcher.Constraint("Vertical", 0, 3, 1, 3),
    Sketcher.Constraint("Vertical", 1, 3, 2, 3),
    Sketcher.Constraint("Vertical", 2, 3, 3, 3),
    Sketcher.Constraint("Vertical", 3, 3, 4, 3),
    Sketcher.Constraint("Vertical", 5, 3, 6, 3),
    Sketcher.Constraint("Vertical", 6, 3, 7, 3),
    Sketcher.Constraint("Vertical", 7, 3, 8, 3),
    Sketcher.Constraint("Vertical", 8, 3, 9, 3),
    Sketcher.Constraint("Vertical", 9, 3, 10, 3),
    Sketcher.Constraint("Vertical", 4, 3, 11, 3),
    Sketcher.Constraint("Vertical", 11, 3, 12, 3),
    Sketcher.Constraint("Vertical", 12, 3, 13, 3),
    Sketcher.Constraint("Vertical", 13, 3, 14, 3),
    Sketcher.Constraint("Vertical", 14, 3, 15, 3),
    Sketcher.Constraint("Vertical", 16, 3, 17, 3),
    Sketcher.Constraint("Vertical", 17, 3, 18, 3),
    Sketcher.Constraint("Vertical", 18, 3, 19, 3),
    Sketcher.Constraint("Vertical", 19, 3, 20, 3),
    Sketcher.Constraint("Vertical", 21, 3, 22, 3),
    Sketcher.Constraint("Vertical", 22, 3, 23, 3),
    Sketcher.Constraint("Vertical", 23, 3, 24, 3),
    Sketcher.Constraint("Vertical", 24, 3, 25, 3),
    Sketcher.Constraint("Vertical", 25, 3, 26, 3),
    Sketcher.Constraint("Vertical", 20, 3, 27, 3),
    Sketcher.Constraint("Vertical", 27, 3, 28, 3),
    Sketcher.Constraint("Vertical", 28, 3, 29, 3),
    Sketcher.Constraint("Vertical", 29, 3, 30, 3),
    Sketcher.Constraint("Vertical", 30, 3, 31, 3),
    Sketcher.Constraint("DistanceY", 4, 3, 3, 3, 38.1),
    Sketcher.Constraint("DistanceY", 8, 3, 6, 3, 107.5),
    Sketcher.Constraint("DistanceY", 9, 3, 4, 3, 69.4),
    Sketcher.Constraint("DistanceY", 8, 3, 11, 3, 38.1),
    Sketcher.Constraint("DistanceX", 21, 3, 10, 3, 38.1),
    Sketcher.Constraint("Diameter", 0, 2.38125),
    Sketcher.Constraint("DistanceX", -1, 1, 5, 3, 69.05),
    Sketcher.Constraint("DistanceY", 3, 3, 1, 3, 6.65),
    Sketcher.Constraint("DistanceY", 1, 3, -1, 1, 113.175),
    Sketcher.Constraint("DistanceX", 16, 3, 15, 3, 91.7625),
    Sketcher.Constraint("DistanceX", -1, 1, 0, 3, 95.88125),
    Sketcher.Constraint("DistanceY", 0, 3, -1, 1, 10.61875),
    Sketcher.Constraint("DistanceY", 10, 3, -1, 1, 329.88125),
    Sketcher.Constraint("DistanceY", 2, 3, -1, 1, 61.896875),
    Sketcher.Constraint("DistanceY", 13, 3, -1, 1, 278.603125),
])
pocket3 = body.newObject("PartDesign::Pocket", "Pocket002")
pocket3.Profile = sketch10
pocket3.Type = "ThroughAll"
pocket3.Reversed = True

doc.recompute()
